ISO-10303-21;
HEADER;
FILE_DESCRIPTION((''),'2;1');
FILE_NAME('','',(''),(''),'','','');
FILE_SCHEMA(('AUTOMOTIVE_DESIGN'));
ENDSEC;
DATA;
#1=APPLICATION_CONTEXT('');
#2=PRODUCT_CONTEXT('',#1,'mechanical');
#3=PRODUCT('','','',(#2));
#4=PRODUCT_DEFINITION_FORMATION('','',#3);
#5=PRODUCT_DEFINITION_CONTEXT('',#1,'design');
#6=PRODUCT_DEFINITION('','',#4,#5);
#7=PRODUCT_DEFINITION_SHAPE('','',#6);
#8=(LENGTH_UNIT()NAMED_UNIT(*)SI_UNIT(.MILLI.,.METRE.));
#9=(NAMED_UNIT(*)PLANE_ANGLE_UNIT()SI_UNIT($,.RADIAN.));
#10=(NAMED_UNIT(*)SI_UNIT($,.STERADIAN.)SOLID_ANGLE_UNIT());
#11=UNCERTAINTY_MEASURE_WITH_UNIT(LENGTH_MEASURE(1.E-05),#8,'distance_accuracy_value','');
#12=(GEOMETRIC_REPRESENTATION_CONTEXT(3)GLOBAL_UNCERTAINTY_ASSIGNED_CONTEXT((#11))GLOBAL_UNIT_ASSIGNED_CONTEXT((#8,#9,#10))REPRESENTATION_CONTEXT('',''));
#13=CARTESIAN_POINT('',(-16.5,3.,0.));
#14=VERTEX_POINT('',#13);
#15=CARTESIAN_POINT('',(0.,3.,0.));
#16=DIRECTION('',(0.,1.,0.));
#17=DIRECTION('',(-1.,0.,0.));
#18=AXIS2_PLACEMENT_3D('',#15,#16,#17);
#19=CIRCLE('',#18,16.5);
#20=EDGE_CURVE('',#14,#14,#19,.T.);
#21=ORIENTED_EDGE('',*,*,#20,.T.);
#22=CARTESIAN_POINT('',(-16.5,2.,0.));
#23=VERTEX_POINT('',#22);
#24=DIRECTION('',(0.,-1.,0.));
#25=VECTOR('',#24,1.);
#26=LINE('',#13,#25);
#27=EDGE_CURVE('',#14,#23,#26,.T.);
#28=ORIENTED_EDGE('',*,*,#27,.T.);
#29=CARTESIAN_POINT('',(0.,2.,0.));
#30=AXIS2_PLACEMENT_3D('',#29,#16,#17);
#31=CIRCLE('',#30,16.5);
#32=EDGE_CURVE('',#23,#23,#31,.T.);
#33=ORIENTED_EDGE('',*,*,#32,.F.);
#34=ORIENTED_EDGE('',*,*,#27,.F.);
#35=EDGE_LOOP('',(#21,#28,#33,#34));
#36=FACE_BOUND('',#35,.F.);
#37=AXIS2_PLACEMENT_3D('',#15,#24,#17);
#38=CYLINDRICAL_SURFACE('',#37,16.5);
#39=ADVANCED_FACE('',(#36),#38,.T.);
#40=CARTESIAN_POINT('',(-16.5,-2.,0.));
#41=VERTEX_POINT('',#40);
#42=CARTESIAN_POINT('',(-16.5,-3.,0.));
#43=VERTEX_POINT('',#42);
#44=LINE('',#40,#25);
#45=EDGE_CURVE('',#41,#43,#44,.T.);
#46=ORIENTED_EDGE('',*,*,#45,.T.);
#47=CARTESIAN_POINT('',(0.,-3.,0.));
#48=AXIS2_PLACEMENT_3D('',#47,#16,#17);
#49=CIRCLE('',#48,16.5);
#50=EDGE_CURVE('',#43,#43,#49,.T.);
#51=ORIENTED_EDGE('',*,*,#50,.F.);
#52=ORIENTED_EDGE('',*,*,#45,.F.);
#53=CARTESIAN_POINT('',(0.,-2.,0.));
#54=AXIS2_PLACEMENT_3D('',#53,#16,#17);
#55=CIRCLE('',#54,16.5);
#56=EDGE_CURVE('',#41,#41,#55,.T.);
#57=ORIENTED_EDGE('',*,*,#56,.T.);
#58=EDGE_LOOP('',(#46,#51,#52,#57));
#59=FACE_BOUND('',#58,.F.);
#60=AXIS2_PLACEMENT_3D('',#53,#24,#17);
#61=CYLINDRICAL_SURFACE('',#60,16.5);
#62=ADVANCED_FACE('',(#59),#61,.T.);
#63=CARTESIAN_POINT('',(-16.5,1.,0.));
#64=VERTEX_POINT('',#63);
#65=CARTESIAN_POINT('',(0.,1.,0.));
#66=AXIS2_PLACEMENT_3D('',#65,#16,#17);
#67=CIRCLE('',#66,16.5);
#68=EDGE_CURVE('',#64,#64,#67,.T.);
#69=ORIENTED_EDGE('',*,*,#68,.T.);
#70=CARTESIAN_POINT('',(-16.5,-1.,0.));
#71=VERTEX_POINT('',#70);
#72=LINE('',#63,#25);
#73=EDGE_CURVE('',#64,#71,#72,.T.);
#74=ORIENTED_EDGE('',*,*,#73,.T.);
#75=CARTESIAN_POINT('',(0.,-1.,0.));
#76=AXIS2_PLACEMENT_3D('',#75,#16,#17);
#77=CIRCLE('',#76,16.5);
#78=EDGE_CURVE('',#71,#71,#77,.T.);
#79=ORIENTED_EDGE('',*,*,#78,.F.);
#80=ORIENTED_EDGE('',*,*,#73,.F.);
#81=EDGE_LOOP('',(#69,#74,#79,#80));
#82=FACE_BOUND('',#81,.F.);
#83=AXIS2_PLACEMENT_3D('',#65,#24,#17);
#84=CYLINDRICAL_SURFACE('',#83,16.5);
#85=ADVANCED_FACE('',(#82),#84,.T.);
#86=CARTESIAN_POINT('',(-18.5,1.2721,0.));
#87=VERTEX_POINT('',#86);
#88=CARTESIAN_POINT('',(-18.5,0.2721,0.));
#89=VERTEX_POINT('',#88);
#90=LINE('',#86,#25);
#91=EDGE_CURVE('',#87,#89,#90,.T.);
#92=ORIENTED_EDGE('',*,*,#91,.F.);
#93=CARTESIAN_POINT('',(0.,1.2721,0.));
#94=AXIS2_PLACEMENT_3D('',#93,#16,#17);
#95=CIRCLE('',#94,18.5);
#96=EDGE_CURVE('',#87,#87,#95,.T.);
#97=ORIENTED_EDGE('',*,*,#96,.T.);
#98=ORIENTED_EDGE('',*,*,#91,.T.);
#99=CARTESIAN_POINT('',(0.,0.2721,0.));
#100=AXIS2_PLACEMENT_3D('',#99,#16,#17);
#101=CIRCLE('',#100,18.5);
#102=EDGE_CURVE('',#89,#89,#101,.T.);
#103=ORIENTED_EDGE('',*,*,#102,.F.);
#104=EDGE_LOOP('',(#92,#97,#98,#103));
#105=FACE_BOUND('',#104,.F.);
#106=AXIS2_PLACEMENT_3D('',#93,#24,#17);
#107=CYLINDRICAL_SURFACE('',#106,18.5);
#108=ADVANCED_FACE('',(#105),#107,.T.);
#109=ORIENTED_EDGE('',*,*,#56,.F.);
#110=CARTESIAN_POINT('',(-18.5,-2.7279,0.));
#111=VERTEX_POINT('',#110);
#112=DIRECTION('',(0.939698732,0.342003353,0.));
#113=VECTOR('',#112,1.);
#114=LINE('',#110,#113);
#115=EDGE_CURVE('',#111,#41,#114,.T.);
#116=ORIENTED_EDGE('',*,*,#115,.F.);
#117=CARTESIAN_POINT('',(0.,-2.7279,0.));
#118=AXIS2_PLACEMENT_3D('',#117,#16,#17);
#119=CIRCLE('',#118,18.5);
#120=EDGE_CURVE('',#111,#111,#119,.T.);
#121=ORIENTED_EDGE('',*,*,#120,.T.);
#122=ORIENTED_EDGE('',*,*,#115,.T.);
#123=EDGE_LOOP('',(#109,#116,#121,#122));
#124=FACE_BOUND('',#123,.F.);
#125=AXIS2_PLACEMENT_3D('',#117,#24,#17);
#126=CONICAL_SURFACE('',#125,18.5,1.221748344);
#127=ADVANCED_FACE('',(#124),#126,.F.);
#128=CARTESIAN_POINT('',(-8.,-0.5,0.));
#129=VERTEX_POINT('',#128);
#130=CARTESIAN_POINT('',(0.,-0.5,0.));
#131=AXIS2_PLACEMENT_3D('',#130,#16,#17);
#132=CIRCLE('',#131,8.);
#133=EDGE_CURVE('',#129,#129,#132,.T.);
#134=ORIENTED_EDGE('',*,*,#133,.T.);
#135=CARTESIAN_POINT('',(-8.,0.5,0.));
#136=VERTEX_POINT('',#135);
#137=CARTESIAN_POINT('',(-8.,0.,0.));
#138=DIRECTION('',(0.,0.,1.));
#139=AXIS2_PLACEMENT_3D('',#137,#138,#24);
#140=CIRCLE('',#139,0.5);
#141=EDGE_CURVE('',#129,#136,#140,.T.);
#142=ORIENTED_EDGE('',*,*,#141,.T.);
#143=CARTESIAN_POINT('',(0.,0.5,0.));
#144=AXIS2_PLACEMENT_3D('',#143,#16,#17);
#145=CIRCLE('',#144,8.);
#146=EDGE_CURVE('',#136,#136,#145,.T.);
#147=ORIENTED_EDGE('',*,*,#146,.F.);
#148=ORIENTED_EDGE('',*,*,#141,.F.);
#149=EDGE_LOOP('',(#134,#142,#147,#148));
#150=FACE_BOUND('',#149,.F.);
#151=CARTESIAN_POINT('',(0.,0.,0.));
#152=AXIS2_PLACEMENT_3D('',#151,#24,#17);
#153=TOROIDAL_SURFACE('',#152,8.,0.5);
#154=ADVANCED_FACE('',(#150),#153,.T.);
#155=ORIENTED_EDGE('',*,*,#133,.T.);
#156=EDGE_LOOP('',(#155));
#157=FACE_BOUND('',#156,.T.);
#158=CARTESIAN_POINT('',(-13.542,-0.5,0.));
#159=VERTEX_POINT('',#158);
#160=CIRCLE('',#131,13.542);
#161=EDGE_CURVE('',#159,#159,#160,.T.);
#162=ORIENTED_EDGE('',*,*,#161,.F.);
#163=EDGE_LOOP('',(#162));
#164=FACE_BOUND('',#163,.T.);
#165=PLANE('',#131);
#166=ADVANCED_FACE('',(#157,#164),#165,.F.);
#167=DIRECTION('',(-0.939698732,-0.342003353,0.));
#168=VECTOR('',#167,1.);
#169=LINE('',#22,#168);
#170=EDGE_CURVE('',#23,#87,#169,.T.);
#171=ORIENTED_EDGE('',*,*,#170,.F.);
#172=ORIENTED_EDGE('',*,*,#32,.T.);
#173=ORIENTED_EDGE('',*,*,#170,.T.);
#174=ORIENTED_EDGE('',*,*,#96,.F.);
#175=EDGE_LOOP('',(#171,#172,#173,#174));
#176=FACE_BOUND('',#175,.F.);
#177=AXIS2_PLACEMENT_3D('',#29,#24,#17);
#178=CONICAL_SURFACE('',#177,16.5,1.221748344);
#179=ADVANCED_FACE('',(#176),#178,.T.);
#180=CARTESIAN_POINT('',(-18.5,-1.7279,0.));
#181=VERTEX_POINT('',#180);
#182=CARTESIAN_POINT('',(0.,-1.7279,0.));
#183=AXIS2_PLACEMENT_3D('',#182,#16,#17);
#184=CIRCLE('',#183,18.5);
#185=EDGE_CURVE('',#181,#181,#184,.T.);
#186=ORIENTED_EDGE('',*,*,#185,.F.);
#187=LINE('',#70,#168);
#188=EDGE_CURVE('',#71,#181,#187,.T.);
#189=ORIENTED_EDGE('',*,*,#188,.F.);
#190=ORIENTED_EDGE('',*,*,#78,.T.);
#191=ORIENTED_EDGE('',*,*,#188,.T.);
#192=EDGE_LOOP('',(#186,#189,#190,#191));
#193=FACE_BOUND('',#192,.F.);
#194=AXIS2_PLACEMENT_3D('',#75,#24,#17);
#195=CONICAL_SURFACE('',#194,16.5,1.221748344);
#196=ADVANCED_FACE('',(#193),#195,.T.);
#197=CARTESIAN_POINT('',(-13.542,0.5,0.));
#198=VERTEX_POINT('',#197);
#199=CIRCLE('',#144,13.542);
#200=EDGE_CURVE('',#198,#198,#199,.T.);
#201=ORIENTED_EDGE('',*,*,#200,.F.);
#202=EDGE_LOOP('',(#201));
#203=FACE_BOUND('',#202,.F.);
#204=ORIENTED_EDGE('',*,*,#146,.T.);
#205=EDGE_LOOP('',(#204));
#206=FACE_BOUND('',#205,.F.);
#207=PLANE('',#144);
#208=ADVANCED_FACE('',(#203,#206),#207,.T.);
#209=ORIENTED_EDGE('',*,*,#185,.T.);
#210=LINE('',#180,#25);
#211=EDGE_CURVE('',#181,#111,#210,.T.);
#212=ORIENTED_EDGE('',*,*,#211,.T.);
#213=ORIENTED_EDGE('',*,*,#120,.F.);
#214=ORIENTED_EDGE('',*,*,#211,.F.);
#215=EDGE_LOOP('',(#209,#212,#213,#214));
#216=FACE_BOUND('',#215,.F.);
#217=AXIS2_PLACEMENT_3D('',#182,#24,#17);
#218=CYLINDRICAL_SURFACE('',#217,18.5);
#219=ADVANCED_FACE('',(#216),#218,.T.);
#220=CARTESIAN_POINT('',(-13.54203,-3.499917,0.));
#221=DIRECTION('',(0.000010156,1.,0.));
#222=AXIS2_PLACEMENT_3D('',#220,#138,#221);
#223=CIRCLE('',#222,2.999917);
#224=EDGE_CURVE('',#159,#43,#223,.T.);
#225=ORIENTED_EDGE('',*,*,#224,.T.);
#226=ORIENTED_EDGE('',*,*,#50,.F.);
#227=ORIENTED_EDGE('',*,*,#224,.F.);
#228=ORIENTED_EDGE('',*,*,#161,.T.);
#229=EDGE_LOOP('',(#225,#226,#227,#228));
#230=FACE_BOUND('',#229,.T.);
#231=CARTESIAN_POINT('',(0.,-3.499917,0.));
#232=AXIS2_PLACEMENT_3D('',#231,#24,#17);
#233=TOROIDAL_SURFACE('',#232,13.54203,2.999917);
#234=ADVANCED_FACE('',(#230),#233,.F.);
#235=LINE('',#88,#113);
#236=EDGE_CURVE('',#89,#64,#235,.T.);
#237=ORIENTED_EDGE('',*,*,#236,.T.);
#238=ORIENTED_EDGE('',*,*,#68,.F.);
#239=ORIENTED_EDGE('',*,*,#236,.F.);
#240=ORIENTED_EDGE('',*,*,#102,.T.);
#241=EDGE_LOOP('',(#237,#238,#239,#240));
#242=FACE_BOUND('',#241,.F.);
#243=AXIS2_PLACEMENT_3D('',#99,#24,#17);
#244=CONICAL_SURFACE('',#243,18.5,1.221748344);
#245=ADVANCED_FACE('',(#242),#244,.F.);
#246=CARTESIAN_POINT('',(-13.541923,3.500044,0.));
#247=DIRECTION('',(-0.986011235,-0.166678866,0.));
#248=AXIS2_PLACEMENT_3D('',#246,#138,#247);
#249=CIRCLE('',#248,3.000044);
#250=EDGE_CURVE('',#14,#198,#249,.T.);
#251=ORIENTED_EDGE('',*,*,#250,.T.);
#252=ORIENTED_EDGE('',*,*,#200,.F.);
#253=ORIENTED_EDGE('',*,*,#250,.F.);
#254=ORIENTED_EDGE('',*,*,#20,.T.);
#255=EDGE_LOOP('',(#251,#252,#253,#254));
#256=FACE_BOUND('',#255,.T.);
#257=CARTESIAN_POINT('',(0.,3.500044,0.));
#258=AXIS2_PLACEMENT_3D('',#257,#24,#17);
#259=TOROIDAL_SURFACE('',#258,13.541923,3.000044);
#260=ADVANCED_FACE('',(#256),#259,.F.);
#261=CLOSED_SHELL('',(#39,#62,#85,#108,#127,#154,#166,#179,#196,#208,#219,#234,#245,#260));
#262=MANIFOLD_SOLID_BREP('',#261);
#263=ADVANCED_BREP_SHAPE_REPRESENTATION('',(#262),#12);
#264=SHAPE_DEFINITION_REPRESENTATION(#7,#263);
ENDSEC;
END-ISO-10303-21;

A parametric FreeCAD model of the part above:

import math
import FreeCAD as App
import Part
import Sketcher
from FreeCAD import Vector
Q = App.Units.Quantity

doc = App.newDocument("Part")
body = doc.addObject("PartDesign::Body", "Body")

sketch1 = body.newObject("Sketcher::SketchObject", "Sketch")
sketch1.AttachmentSupport = (doc.getObject("XY_Plane"), [""])
sketch1.MapMode = "FlatFace"
sketch1.addGeometry(Part.LineSegment(Vector(-13.542, -0.5, 0), Vector(-8, -0.5, 0)), False)
sketch1.addGeometry(Part.ArcOfCircle(Part.Circle(Vector(-8, 0, 0), Vector(0, 0, 1), 0.5), math.radians(-90), math.radians(90)), False)
sketch1.addGeometry(Part.LineSegment(Vector(-8, 0.5, 0), Vector(-13.542, 0.5, 0)), False)
sketch1.addGeometry(Part.ArcOfCircle(Part.Circle(Vector(-13.542, 3.5, 0), Vector(0, 0, 1), 2.999961), math.radians(-170.405805), math.radians(-90)), False)
sketch1.addGeometry(Part.LineSegment(Vector(-16.5, 3, 0), Vector(-16.5, 2, 0)), False)
sketch1.addGeometry(Part.LineSegment(Vector(-16.5, 2, 0), Vector(-18.5, 1.2721, 0)), False)
sketch1.addGeometry(Part.LineSegment(Vector(-18.5, 1.2721, 0), Vector(-18.5, 0.2721, 0)), False)
sketch1.addGeometry(Part.LineSegment(Vector(-18.5, 0.2721, 0), Vector(-16.5, 1, 0)), False)
sketch1.addGeometry(Part.LineSegment(Vector(-16.5, 1, 0), Vector(-16.5, -1, 0)), False)
sketch1.addGeometry(Part.LineSegment(Vector(-16.5, -1, 0), Vector(-18.5, -1.7279, 0)), False)
sketch1.addGeometry(Part.LineSegment(Vector(-18.5, -1.7279, 0), Vector(-18.5, -2.7279, 0)), False)
sketch1.addGeometry(Part.LineSegment(Vector(-18.5, -2.7279, 0), Vector(-16.5, -2, 0)), False)
sketch1.addGeometry(Part.LineSegment(Vector(-16.5, -2, 0), Vector(-16.5, -3, 0)), False)
sketch1.addGeometry(Part.ArcOfCircle(Part.Circle(Vector(-13.542, -3.5, 0), Vector(0, 0, 1), 3), math.radians(90), math.radians(170.405805)), False)
sketch1.addConstraint(Sketcher.Constraint("Tangent", 0, 2, 1, 1))
sketch1.addConstraint(Sketcher.Constraint("Tangent", 1, 2, 2, 1))
sketch1.addConstraint(Sketcher.Constraint("Tangent", 2, 2, 3, 2))
sketch1.addConstraint(Sketcher.Constraint("Coincident", 3, 1, 4, 1))
sketch1.addConstraint(Sketcher.Constraint("Coincident", 4, 2, 5, 1))
sketch1.addConstraint(Sketcher.Constraint("Coincident", 5, 2, 6, 1))
sketch1.addConstraint(Sketcher.Constraint("Coincident", 6, 2, 7, 1))
sketch1.addConstraint(Sketcher.Constraint("Coincident", 7, 2, 8, 1))
sketch1.addConstraint(Sketcher.Constraint("Coincident", 8, 2, 9, 1))
sketch1.addConstraint(Sketcher.Constraint("Coincident", 9, 2, 10, 1))
sketch1.addConstraint(Sketcher.Constraint("Coincident", 10, 2, 11, 1))
sketch1.addConstraint(Sketcher.Constraint("Coincident", 11, 2, 12, 1))
sketch1.addConstraint(Sketcher.Constraint("Coincident", 12, 2, 13, 2))
sketch1.addConstraint(Sketcher.Constraint("Tangent", 13, 1, 0, 1))
sketch1.addConstraint(Sketcher.Constraint("Horizontal", 0))
sketch1.addConstraint(Sketcher.Constraint("Horizontal", 2))
sketch1.addConstraint(Sketcher.Constraint("Vertical", 4))
sketch1.addConstraint(Sketcher.Constraint("Vertical", 6))
sketch1.addConstraint(Sketcher.Constraint("Vertical", 8))
sketch1.addConstraint(Sketcher.Constraint("Vertical", 10))
sketch1.addConstraint(Sketcher.Constraint("Vertical", 12))
sketch1.addConstraint(Sketcher.Constraint("Equal", 3, 13))
sketch1.addConstraint(Sketcher.Constraint("Symmetric", 3, 3, 13, 3, -1))
sketch1.addConstraint(Sketcher.Constraint("Symmetric", 4, 2, 11, 2, -1))
sketch1.addConstraint(Sketcher.Constraint("Parallel", 5, 7))
sketch1.addConstraint(Sketcher.Constraint("Parallel", 7, 9))
sketch1.addConstraint(Sketcher.Constraint("Parallel", 9, 11))
sketch1.addConstraint(Sketcher.Constraint("Vertical", 4, 2, 7, 2))
sketch1.addConstraint(Sketcher.Constraint("Vertical", 6, 2, 9, 2))
sketch1.addConstraint(Sketcher.Constraint("Equal", 4, 6))
sketch1.addConstraint(Sketcher.Constraint("Equal", 6, 10))
sketch1.addConstraint(Sketcher.Constraint("Radius", 3, Q("3 mm")))
sketch1.addConstraint(Sketcher.Constraint("Radius", 1, Q("0.5 mm")))
sketch1.addConstraint(Sketcher.Constraint("DistanceY", 4, 2, 4, 1, Q("1 mm")))
sketch1.addConstraint(Sketcher.Constraint("DistanceY", 8, 2, 8, 1, Q("2 mm")))
sketch1.addConstraint(Sketcher.Constraint("DistanceX", 5, 2, 4, 2, Q("2 mm")))
sketch1.addConstraint(Sketcher.Constraint("DistanceX", 0, 1, 0, 2, Q("5.542 mm")))
sketch1.addConstraint(Sketcher.Constraint("Angle", 5, Q("-160.001 deg")))
sketch1.addConstraint(Sketcher.Constraint("DistanceX", 1, 3, -1, 1, Q("8 mm")))
revolution = body.newObject("PartDesign::Revolution", "Revolution")
revolution.Profile = sketch1
revolution.ReferenceAxis = (sketch1, ["V_Axis"])
revolution.Angle = 360

doc.recompute()
